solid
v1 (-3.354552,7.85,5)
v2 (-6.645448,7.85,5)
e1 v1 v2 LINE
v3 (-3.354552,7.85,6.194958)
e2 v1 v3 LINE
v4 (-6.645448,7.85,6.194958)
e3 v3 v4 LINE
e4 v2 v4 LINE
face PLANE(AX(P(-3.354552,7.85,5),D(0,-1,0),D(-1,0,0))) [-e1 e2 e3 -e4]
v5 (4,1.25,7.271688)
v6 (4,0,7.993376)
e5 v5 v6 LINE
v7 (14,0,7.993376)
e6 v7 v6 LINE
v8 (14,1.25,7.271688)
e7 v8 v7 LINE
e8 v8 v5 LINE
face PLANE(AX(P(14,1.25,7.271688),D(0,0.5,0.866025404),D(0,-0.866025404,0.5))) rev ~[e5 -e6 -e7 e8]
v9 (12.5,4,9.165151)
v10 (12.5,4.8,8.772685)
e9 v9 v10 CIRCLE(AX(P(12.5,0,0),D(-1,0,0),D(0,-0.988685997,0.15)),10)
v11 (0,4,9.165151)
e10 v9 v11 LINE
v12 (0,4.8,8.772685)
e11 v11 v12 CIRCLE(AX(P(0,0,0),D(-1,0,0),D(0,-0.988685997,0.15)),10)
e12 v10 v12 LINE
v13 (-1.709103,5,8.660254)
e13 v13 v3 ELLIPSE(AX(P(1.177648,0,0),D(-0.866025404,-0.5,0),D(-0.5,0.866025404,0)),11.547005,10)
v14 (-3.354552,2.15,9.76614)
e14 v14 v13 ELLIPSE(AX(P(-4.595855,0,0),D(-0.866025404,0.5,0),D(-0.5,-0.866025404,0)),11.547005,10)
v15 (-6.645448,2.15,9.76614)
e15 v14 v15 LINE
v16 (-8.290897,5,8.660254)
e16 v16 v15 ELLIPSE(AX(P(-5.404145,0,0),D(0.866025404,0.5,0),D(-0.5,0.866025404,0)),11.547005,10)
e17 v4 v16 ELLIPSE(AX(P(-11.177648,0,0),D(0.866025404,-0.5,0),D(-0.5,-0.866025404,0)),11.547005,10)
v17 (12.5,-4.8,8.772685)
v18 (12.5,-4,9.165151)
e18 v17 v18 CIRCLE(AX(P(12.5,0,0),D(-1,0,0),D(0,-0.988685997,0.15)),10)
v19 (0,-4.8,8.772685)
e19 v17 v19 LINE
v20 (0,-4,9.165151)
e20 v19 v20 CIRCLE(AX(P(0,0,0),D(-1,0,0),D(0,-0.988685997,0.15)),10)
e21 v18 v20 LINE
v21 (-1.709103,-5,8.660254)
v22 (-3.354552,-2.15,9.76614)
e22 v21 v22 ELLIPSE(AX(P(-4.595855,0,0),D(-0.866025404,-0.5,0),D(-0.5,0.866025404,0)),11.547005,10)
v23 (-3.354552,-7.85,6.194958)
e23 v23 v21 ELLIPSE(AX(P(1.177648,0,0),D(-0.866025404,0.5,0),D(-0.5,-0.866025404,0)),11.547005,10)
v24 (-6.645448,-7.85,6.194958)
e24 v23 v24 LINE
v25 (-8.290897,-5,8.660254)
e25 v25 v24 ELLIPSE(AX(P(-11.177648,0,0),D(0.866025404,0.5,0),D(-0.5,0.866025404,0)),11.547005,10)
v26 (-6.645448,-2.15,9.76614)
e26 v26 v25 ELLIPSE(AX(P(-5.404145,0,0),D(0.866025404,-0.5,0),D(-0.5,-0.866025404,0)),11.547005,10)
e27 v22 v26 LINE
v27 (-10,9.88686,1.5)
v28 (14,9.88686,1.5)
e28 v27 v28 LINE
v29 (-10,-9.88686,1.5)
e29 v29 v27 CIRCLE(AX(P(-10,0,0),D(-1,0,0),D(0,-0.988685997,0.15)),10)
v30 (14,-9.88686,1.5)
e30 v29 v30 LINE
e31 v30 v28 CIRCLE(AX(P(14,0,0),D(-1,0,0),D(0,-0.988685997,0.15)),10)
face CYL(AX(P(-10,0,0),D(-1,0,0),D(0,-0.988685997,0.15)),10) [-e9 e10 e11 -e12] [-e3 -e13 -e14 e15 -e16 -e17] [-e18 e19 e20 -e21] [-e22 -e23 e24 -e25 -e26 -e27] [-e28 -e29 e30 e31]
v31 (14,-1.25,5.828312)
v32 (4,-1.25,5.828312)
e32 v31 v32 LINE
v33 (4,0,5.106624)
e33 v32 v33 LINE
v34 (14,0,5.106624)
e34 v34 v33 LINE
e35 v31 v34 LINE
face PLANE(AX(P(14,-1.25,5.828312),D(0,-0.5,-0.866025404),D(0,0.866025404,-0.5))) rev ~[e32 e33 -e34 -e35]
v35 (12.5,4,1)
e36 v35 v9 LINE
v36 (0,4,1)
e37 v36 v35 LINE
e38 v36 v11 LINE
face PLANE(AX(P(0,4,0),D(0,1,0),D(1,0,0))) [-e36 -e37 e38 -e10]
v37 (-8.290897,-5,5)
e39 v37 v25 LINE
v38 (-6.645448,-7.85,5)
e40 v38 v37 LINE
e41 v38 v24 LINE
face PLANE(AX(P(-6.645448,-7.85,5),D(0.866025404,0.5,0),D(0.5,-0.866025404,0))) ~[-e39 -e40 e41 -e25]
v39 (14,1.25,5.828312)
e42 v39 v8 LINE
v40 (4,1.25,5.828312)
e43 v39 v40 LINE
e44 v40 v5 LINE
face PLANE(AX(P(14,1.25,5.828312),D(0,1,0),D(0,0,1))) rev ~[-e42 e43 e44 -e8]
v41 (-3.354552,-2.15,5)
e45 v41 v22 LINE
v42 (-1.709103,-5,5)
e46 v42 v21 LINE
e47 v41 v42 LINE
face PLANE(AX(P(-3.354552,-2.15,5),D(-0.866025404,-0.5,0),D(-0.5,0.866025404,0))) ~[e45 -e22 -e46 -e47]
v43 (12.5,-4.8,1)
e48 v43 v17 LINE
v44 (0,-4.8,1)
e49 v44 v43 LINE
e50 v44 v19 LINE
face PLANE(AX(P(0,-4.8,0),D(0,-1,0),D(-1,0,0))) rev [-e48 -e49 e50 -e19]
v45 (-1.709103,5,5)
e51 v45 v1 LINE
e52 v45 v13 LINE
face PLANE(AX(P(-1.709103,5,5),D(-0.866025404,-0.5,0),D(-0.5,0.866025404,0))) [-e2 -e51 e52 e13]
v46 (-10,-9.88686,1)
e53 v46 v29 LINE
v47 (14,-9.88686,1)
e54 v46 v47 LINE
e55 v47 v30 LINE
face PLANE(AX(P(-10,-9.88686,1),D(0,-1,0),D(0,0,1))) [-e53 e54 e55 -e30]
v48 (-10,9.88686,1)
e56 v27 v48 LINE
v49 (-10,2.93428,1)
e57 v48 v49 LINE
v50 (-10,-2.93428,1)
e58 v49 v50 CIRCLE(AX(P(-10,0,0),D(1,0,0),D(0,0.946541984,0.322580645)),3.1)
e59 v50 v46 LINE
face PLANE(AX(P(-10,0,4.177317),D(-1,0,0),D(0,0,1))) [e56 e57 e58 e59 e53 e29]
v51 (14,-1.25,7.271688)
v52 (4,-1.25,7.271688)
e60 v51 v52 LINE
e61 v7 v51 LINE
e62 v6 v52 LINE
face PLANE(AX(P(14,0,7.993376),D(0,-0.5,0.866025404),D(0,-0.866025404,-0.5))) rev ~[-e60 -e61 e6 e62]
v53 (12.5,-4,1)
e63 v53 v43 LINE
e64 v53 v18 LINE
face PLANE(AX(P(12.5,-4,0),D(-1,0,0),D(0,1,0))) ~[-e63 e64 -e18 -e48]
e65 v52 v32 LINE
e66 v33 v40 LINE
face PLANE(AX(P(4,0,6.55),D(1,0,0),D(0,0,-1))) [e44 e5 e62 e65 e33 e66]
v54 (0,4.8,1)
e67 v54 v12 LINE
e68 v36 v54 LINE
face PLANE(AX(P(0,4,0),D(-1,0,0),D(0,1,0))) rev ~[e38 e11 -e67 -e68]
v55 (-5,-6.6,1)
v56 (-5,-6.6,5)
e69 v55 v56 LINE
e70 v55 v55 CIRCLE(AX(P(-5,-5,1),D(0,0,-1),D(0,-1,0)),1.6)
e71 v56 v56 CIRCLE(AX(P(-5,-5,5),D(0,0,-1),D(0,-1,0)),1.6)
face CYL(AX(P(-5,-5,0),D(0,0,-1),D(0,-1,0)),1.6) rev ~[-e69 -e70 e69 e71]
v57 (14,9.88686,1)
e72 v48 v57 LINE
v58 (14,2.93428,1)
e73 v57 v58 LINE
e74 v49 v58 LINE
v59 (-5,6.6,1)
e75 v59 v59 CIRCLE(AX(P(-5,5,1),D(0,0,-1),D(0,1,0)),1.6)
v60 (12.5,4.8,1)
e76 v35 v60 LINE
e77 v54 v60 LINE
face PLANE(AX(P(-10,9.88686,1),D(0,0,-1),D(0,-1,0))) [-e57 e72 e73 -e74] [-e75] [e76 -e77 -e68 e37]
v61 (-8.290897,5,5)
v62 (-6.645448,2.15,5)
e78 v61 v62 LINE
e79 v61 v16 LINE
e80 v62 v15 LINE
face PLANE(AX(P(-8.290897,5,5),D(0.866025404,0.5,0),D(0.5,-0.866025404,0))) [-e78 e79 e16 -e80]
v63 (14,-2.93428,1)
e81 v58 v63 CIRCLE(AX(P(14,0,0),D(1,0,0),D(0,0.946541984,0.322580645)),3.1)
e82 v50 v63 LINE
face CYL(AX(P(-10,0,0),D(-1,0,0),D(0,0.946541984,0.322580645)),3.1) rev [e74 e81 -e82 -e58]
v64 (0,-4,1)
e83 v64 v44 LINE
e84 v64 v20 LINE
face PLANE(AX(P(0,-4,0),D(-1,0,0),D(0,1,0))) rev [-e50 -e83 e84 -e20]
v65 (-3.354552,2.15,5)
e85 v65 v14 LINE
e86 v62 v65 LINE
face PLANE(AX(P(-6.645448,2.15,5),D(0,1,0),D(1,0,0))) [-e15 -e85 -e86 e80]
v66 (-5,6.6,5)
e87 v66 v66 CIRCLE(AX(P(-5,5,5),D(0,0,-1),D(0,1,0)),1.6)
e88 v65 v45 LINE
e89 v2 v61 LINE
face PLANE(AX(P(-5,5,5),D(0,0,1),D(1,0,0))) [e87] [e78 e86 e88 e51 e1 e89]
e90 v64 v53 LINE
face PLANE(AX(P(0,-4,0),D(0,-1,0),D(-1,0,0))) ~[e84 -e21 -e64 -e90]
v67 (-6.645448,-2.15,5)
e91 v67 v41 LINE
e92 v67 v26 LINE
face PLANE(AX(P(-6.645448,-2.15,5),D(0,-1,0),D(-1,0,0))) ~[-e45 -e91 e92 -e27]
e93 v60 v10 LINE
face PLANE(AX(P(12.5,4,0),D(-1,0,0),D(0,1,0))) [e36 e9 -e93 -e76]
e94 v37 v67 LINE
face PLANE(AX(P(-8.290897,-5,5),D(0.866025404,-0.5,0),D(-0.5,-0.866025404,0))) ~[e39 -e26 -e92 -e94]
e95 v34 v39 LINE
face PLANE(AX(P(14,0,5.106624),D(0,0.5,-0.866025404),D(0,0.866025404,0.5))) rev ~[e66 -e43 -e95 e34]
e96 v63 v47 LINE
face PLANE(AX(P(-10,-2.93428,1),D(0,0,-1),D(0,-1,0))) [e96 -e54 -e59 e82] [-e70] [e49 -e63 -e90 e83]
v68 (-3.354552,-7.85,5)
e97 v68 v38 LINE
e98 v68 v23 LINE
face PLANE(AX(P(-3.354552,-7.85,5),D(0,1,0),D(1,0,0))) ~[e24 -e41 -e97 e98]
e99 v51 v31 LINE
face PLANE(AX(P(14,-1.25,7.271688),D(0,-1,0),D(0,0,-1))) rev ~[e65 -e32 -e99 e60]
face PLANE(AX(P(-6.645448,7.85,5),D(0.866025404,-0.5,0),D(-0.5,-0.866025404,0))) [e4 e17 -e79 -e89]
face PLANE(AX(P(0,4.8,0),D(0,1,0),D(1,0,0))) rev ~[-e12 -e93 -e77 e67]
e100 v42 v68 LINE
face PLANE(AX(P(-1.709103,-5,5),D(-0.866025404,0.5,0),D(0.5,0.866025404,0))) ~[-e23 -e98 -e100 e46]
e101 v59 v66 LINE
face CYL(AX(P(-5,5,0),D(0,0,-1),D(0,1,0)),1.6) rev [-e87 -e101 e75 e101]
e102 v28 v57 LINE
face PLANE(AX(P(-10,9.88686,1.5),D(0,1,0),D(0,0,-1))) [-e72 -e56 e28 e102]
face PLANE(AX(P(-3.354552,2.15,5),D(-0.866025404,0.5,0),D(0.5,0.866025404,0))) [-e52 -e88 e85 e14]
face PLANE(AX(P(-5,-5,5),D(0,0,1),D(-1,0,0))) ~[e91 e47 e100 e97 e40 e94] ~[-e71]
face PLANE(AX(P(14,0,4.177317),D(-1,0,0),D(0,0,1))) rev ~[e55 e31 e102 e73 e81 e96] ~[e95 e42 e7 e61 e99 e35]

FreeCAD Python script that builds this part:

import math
import FreeCAD as App
import Part
import Sketcher

V = App.Vector
Q = App.Units.Quantity

doc = App.newDocument("Part")
body = doc.addObject("PartDesign::Body", "Body")

# Sketch on YZ plane
sketch1 = body.newObject("Sketcher::SketchObject", "Sketch")
sketch1.AttachmentSupport = (doc.getObject("YZ_Plane"), [""])
sketch1.MapMode = "FlatFace"
sketch1.addGeometry([
    Part.LineSegment(V(9.9, 1, 0), V(9.9, 1.5, 0)),  # 0
    Part.ArcOfCircle(Part.Circle(V(0, 0, 0), V(0, 0, 1), 10), math.radians(9), math.radians(171)),  # 1
    Part.LineSegment(V(-9.9, 1.5, 0), V(-9.9, 1, 0)),  # 2
    Part.LineSegment(V(-9.9, 1, 0), V(-2.9, 1, 0)),  # 3
    Part.ArcOfCircle(Part.Circle(V(0, 0, 0), V(0, 0, 1), 3.1), math.radians(19), math.radians(161)),  # 4
    Part.LineSegment(V(2.9, 1, 0), V(9.9, 1, 0)),  # 5
], False)
sketch1.addConstraint([
    Sketcher.Constraint("Coincident", 0, 2, 1, 1),
    Sketcher.Constraint("Coincident", 1, 2, 2, 1),
    Sketcher.Constraint("Coincident", 2, 2, 3, 1),
    Sketcher.Constraint("Coincident", 3, 2, 4, 2),
    Sketcher.Constraint("Coincident", 4, 1, 5, 1),
    Sketcher.Constraint("Coincident", 5, 2, 0, 1),
    Sketcher.Constraint("Vertical", 0),
    Sketcher.Constraint("Vertical", 2),
    Sketcher.Constraint("Horizontal", 3),
    Sketcher.Constraint("Horizontal", 5),
    Sketcher.Constraint("Coincident", 1, 3, -1, 1),
    Sketcher.Constraint("Coincident", 4, 3, -1, 1),
    Sketcher.Constraint("Symmetric", 2, 2, 5, 2, -2),
    Sketcher.Constraint("Radius", 1, Q("10 mm")),
    Sketcher.Constraint("Radius", 4, Q("3.1 mm")),
    Sketcher.Constraint("DistanceY", 0, 1, 0, 2, Q("0.5 mm")),
    Sketcher.Constraint("DistanceY", -1, 1, 2, 2, Q("1 mm")),
])
pad1 = body.newObject("PartDesign::Pad", "Pad")
pad1.Profile = sketch1
pad1.Type = "TwoLengths"
pad1.Length = 14
pad1.Length2 = 10

# Sketch on XY plane
sketch2 = body.newObject("Sketcher::SketchObject", "Sketch001")
sketch2.AttachmentSupport = (doc.getObject("XY_Plane"), [""])
sketch2.MapMode = "FlatFace"
sketch2.addGeometry([
    Part.LineSegment(V(0, 4.8, 0), V(0, 4, 0)),
    Part.LineSegment(V(0, 4, 0), V(12.5, 4, 0)),
    Part.LineSegment(V(12.5, 4, 0), V(12.5, 4.8, 0)),
    Part.LineSegment(V(12.5, 4.8, 0), V(0, 4.8, 0)),
], False)
sketch2.addConstraint([
    Sketcher.Constraint("Coincident", 0, 2, 1, 1),
    Sketcher.Constraint("Coincident", 1, 2, 2, 1),
    Sketcher.Constraint("Coincident", 2, 2, 3, 1),
    Sketcher.Constraint("Coincident", 3, 2, 0, 1),
    Sketcher.Constraint("Vertical", 0),
    Sketcher.Constraint("Horizontal", 1),
    Sketcher.Constraint("Vertical", 2),
    Sketcher.Constraint("Horizontal", 3),
    Sketcher.Constraint("PointOnObject", 0, 2, -2),
    Sketcher.Constraint("DistanceX", 1, 1, 1, 2, Q("12.5 mm")),
    Sketcher.Constraint("DistanceY", 0, 2, 0, 1, Q("0.8 mm")),
    Sketcher.Constraint("DistanceY", -1, 1, 0, 2, Q("4 mm")),
])
pocket1 = body.newObject("PartDesign::Pocket", "Pocket")
pocket1.Profile = sketch2
pocket1.Type = "ThroughAll"
pocket1.Reversed = True

# Sketch on XY plane
sketch3 = body.newObject("Sketcher::SketchObject", "Sketch002")
sketch3.AttachmentSupport = (doc.getObject("XY_Plane"), [""])
sketch3.MapMode = "FlatFace"
sketch3.AttachmentOffset = App.Placement(V(0, 0, 5), App.Rotation())
sketch3.addGeometry([
    Part.LineSegment(V(-3.4, 2.1, 0), V(-1.7, 5, 0)),  # 0
    Part.LineSegment(V(-1.7, 5, 0), V(-3.4, 7.8, 0)),  # 1
    Part.LineSegment(V(-3.4, 7.8, 0), V(-6.6, 7.8, 0)),  # 2
    Part.LineSegment(V(-6.6, 7.8, 0), V(-8.3, 5, 0)),  # 3
    Part.LineSegment(V(-8.3, 5, 0), V(-6.6, 2.1, 0)),  # 4
    Part.LineSegment(V(-6.6, 2.1, 0), V(-3.4, 2.1, 0)),  # 5
], False)
sketch3.addConstraint([
    Sketcher.Constraint("Coincident", 0, 2, 1, 1),
    Sketcher.Constraint("Coincident", 1, 2, 2, 1),
    Sketcher.Constraint("Coincident", 2, 2, 3, 1),
    Sketcher.Constraint("Coincident", 3, 2, 4, 1),
    Sketcher.Constraint("Coincident", 4, 2, 5, 1),
    Sketcher.Constraint("Coincident", 5, 2, 0, 1),
    Sketcher.Constraint("Horizontal", 2),
    Sketcher.Constraint("Horizontal", 5),
    Sketcher.Constraint("Parallel", 0, 3),
    Sketcher.Constraint("Parallel", 1, 4),
    Sketcher.Constraint("Horizontal", 0, 2, 3, 2),
    Sketcher.Constraint("Vertical", 2, 2, 4, 2),
    Sketcher.Constraint("Vertical", 1, 2, 5, 2),
    Sketcher.Constraint("Angle", 0, Q("60 deg")),
    Sketcher.Constraint("DistanceY", -1, 1, 0, 2, Q("5 mm")),
    Sketcher.Constraint("DistanceY", 4, 2, 2, 2, Q("5.7 mm")),
    Sketcher.Constraint("DistanceX", 2, 2, 2, 1, Q("3.290897 mm")),
    Sketcher.Constraint("DistanceX", 1, 2, -1, 1, Q("3.354552 mm")),
])
pocket2 = body.newObject("PartDesign::Pocket", "Pocket001")
pocket2.Profile = sketch3
pocket2.Type = "ThroughAll"
pocket2.Reversed = True

# Sketch on XY plane
sketch4 = body.newObject("Sketcher::SketchObject", "Sketch003")
sketch4.AttachmentSupport = (doc.getObject("XY_Plane"), [""])
sketch4.MapMode = "FlatFace"
sketch4.addGeometry(Part.Circle(V(-5, 5, 0), V(0, 0, 1), 1.6), False)
sketch4.addConstraint([
    Sketcher.Constraint("Diameter", 0, Q("3.2 mm")),
    Sketcher.Constraint("DistanceX", 0, 3, -1, 1, Q("5 mm")),
    Sketcher.Constraint("DistanceY", -1, 1, 0, 3, Q("5 mm")),
])
pocket3 = body.newObject("PartDesign::Pocket", "Pocket002")
pocket3.Profile = sketch4
pocket3.Type = "ThroughAll"
pocket3.Reversed = True
doc.recompute()

mirrored = body.newObject("PartDesign::Mirrored", "Mirrored")
mirrored.Originals = [pocket1, pocket2, pocket3]
mirrored.MirrorPlane = (doc.getObject("XZ_Plane"), [""])
body.Tip = mirrored

# Sketch on YZ plane
sketch5 = body.newObject("Sketcher::SketchObject", "Sketch004")
sketch5.AttachmentSupport = (doc.getObject("YZ_Plane"), [""])
sketch5.MapMode = "FlatFace"
sketch5.AttachmentOffset = App.Placement(V(0, 0, 14), App.Rotation())
sketch5.addGeometry([
    Part.LineSegment(V(1.2, 5.8, 0), V(1.2, 7.3, 0)),  # 0
    Part.LineSegment(V(1.2, 7.3, 0), V(0, 8, 0)),  # 1
    Part.LineSegment(V(0, 8, 0), V(-1.2, 7.3, 0)),  # 2
    Part.LineSegment(V(-1.2, 7.3, 0), V(-1.2, 5.8, 0)),  # 3
    Part.LineSegment(V(-1.2, 5.8, 0), V(0, 5.1, 0)),  # 4
    Part.LineSegment(V(0, 5.1, 0), V(1.2, 5.8, 0)),  # 5
], False)
sketch5.addConstraint([
    Sketcher.Constraint("Coincident", 0, 2, 1, 1),
    Sketcher.Constraint("Coincident", 1, 2, 2, 1),
    Sketcher.Constraint("Coincident", 2, 2, 3, 1),
    Sketcher.Constraint("Coincident", 3, 2, 4, 1),
    Sketcher.Constraint("Coincident", 4, 2, 5, 1),
    Sketcher.Constraint("Coincident", 5, 2, 0, 1),
    Sketcher.Constraint("Vertical", 0),
    Sketcher.Constraint("Vertical", 3),
    Sketcher.Constraint("Symmetric", 0, 2, 2, 2, -2),
    Sketcher.Constraint("PointOnObject", 1, 2, -2),
    Sketcher.Constraint("PointOnObject", 4, 2, -2),
    Sketcher.Constraint("Parallel", 1, 4),
    Sketcher.Constraint("Parallel", 2, 5),
    Sketcher.Constraint("Angle", 1, Q("150 deg")),
    Sketcher.Constraint("DistanceX", 2, 2, 0, 2, Q("2.5 mm")),
    Sketcher.Constraint("DistanceY", 0, 1, 0, 2, Q("1.443376 mm")),
    Sketcher.Constraint("DistanceY", -1, 1, 0, 2, Q("7.271688 mm")),
])
pocket4 = body.newObject("PartDesign::Pocket", "Pocket003")
pocket4.Profile = sketch5
pocket4.Length = 10

doc.recompute()
